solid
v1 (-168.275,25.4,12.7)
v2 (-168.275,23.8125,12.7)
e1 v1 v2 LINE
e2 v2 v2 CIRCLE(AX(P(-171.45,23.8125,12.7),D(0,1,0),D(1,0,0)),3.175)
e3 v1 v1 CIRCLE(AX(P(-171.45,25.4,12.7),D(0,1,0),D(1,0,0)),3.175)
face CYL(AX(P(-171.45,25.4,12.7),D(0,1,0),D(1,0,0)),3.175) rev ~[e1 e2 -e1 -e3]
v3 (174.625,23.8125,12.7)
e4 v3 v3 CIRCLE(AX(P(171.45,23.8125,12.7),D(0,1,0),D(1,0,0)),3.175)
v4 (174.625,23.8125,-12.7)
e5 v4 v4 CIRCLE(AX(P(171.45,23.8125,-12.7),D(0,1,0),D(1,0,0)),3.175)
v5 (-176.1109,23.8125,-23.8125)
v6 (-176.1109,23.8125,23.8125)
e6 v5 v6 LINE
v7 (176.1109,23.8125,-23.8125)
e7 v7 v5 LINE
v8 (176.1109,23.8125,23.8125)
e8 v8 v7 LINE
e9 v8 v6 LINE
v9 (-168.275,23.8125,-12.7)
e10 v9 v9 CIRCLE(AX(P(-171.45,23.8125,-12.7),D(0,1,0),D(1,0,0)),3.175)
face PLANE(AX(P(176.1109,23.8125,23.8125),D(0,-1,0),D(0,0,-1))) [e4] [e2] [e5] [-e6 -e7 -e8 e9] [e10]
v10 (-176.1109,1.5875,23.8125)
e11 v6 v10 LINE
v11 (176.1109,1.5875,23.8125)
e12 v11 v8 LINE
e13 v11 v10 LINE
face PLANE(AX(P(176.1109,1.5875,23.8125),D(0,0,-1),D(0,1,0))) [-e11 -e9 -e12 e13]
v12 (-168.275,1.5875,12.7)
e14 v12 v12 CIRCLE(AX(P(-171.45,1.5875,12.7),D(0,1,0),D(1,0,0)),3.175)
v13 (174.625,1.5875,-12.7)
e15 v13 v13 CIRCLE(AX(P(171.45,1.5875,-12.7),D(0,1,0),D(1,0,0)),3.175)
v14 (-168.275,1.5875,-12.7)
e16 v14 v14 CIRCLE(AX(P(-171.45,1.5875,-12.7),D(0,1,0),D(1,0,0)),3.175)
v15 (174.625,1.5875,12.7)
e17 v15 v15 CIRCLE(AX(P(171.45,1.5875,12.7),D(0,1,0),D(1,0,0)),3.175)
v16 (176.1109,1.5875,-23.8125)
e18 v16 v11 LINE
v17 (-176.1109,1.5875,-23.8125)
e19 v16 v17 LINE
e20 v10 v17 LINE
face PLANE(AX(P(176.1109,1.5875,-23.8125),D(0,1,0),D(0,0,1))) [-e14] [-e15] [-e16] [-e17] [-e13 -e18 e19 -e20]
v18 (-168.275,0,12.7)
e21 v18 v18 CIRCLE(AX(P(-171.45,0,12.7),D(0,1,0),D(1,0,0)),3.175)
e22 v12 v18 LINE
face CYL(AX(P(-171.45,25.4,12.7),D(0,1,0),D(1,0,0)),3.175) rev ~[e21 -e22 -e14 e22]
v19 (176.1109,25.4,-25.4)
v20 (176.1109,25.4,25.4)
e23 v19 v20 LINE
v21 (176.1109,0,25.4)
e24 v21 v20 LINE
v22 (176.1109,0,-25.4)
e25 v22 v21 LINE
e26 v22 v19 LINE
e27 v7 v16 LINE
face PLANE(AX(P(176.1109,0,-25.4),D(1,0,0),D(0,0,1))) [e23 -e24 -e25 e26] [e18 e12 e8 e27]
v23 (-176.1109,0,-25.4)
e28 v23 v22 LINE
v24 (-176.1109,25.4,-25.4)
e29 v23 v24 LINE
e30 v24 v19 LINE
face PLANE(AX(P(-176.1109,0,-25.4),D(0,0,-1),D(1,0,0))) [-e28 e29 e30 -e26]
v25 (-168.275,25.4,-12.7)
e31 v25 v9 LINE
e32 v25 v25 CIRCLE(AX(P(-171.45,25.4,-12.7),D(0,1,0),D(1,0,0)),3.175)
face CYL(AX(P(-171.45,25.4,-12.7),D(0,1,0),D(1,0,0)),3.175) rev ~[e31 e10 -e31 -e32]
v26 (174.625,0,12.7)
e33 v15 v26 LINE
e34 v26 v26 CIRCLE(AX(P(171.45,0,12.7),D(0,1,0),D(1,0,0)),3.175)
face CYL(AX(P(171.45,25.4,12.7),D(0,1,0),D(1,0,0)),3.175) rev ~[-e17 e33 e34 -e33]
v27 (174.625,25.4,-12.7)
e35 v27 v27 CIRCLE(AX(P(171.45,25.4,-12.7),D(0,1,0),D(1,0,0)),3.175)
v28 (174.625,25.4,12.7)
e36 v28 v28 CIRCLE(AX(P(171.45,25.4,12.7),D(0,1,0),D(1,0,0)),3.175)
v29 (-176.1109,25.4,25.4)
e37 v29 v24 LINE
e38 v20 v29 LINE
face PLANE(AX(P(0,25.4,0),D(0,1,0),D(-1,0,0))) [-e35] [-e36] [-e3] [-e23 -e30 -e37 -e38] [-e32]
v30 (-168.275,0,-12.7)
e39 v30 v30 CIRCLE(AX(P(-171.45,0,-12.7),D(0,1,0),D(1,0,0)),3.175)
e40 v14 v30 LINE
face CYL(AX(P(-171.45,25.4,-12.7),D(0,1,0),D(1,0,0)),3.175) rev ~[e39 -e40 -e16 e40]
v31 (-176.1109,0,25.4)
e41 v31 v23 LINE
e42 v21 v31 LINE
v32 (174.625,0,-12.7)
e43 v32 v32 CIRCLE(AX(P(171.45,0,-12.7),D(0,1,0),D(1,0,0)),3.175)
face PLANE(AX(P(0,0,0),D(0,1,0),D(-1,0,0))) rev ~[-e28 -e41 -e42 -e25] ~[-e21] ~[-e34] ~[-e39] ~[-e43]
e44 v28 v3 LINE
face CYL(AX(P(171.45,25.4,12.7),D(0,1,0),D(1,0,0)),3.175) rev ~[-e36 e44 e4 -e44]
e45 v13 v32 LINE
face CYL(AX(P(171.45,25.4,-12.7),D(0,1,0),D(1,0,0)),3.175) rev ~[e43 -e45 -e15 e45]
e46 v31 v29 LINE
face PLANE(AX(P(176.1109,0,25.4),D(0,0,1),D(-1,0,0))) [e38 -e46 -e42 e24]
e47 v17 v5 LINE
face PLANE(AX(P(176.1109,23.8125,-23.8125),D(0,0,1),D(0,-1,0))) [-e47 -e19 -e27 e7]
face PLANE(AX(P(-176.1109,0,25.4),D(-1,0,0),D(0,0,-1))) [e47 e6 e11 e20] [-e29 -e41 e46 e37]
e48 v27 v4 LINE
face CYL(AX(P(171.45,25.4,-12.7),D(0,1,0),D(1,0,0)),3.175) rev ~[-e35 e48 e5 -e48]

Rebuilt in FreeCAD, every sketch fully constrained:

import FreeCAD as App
import Part
import Sketcher

V = App.Vector
Q = App.Units.Quantity


def add_polygon(sketch, points):
    """Adds a closed chain of lines whose ends are joined by coincident constraints."""
    first, n = sketch.GeometryCount, len(points)
    for a, b in zip(points, points[1:] + points[:1]):
        sketch.addGeometry(Part.LineSegment(App.Vector(*a, 0), App.Vector(*b, 0)), False)
    for i in range(n):
        sketch.addConstraint(Sketcher.Constraint("Coincident", first + i, 2, first + (i + 1) % n, 1))

doc = App.newDocument("Part")
body = doc.addObject("PartDesign::Body", "Body")

sketch1 = body.newObject("Sketcher::SketchObject", "Sketch")
sketch1.AttachmentSupport = (doc.getObject("XZ_Plane"), [""])
sketch1.MapMode = "FlatFace"
add_polygon(sketch1, [(176.1109, -25.4), (-176.1109, -25.4), (-176.1109, 25.4), (176.1109, 25.4)])
sketch1.addConstraint([
    Sketcher.Constraint("Horizontal", 0),
    Sketcher.Constraint("Vertical", 1),
    Sketcher.Constraint("Horizontal", 2),
    Sketcher.Constraint("Vertical", 3),
    Sketcher.Constraint("Symmetric", 0, 2, 2, 2, -1, 1),
    Sketcher.Constraint("DistanceY", 1, 1, 1, 2, Q("2 in")),
    Sketcher.Constraint("DistanceX", 0, 2, 0, 1, Q("13.867 in")),
])
pad1 = body.newObject("PartDesign::Pad", "Pad")
pad1.Profile = sketch1
pad1.Length = Q("1 in")
pad1.Reversed = True

sketch2 = body.newObject("Sketcher::SketchObject", "Sketch001")
sketch2.AttachmentSupport = (doc.getObject("YZ_Plane"), [""])
sketch2.MapMode = "FlatFace"
sketch2.AttachmentOffset = App.Placement(V(0, 0, 6.9335 * 25.4), App.Rotation())
add_polygon(sketch2, [(23.8125, -23.8125), (23.8125, 23.8125), (1.5875, 23.8125), (1.5875, -23.8125)])
sketch2.addConstraint([
    Sketcher.Constraint("Vertical", 0),
    Sketcher.Constraint("Horizontal", 1),
    Sketcher.Constraint("Vertical", 2),
    Sketcher.Constraint("Horizontal", 3),
    Sketcher.Constraint("DistanceX", 1, 2, 1, 1, Q("0.875 in")),
    Sketcher.Constraint("DistanceY", 0, 1, 0, 2, Q("1.875 in")),
    Sketcher.Constraint("DistanceX", -1, 1, 0, 2, Q("0.9375 in")),
    Sketcher.Constraint("DistanceY", -1, 1, 0, 2, Q("0.9375 in")),
])
pocket1 = body.newObject("PartDesign::Pocket", "Pocket")
pocket1.Profile = sketch2
pocket1.Type = "ThroughAll"

sketch3 = body.newObject("Sketcher::SketchObject", "Sketch002")
sketch3.AttachmentSupport = (doc.getObject("XZ_Plane"), [""])
sketch3.MapMode = "FlatFace"
sketch3.AttachmentOffset = App.Placement(V(0, 0, -1 * 25.4), App.Rotation())
sketch3.addGeometry([
    Part.Circle(V(-171.45, -12.7, 0), V(0, 0, 1), 3.175),
    Part.Circle(V(-171.45, 12.7, 0), V(0, 0, 1), 3.175),
    Part.Circle(V(171.45, -12.7, 0), V(0, 0, 1), 3.175),
    Part.Circle(V(171.45, 12.7, 0), V(0, 0, 1), 3.175),
], False)
sketch3.addConstraint([
    Sketcher.Constraint("Equal", 0, 1),
    Sketcher.Constraint("Equal", 1, 2),
    Sketcher.Constraint("Equal", 2, 3),
    Sketcher.Constraint("Symmetric", 1, 3, 2, 3, -1, 1),
    Sketcher.Constraint("Symmetric", 0, 3, 3, 3, -1, 1),
    Sketcher.Constraint("Symmetric", 0, 3, 2, 3, -2),
    Sketcher.Constraint("Diameter", 0, Q("0.25 in")),
    Sketcher.Constraint("DistanceY", 0, 3, 1, 3, Q("1 in")),
    Sketcher.Constraint("DistanceX", 0, 3, 2, 3, Q("13.5 in")),
])
pocket2 = body.newObject("PartDesign::Pocket", "Pocket001")
pocket2.Profile = sketch3
pocket2.Type = "ThroughAll"
pocket2.Reversed = True

doc.recompute()
